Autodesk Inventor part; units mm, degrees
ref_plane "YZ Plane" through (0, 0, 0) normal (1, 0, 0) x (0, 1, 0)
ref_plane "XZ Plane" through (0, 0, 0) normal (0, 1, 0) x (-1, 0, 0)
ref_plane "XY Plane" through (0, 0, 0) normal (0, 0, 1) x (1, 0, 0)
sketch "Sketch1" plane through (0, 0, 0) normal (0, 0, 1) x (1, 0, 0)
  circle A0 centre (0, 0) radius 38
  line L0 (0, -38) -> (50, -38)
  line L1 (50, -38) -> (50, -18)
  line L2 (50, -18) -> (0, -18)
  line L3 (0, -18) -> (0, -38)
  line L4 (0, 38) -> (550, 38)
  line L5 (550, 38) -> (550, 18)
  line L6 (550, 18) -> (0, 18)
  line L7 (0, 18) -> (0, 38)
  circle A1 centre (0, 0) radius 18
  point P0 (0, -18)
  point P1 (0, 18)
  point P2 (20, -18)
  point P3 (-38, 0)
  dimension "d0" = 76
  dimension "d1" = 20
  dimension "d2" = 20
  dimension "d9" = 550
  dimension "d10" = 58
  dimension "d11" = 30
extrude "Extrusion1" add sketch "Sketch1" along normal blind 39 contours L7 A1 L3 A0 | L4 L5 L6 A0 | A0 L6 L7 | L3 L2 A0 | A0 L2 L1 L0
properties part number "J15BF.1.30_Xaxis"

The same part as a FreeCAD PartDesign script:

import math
import FreeCAD as App
import Part
import Sketcher

doc = App.newDocument("Part")
body = doc.addObject("PartDesign::Body", "Body")

# Sketch on XY plane
sketch1 = body.newObject("Sketcher::SketchObject", "Sketch")
sketch1.AttachmentSupport = (doc.getObject("XY_Plane"), [""])
sketch1.MapMode = "FlatFace"
sketch1.addGeometry([
    Part.ArcOfCircle(Part.Circle(App.Vector(0, 0, 0), App.Vector(0, 0, 1), 18), math.radians(90), math.radians(270)),  # 0
    Part.LineSegment(App.Vector(0, 18, 0), App.Vector(550, 18, 0)),  # 1
    Part.LineSegment(App.Vector(550, 18, 0), App.Vector(550, 38, 0)),  # 2
    Part.LineSegment(App.Vector(550, 38, 0), App.Vector(0, 38, 0)),  # 3
    Part.ArcOfCircle(Part.Circle(App.Vector(0, 0, 0), App.Vector(0, 0, 1), 38), math.radians(90), math.radians(270)),  # 4
    Part.LineSegment(App.Vector(0, -38, 0), App.Vector(50, -38, 0)),  # 5
    Part.LineSegment(App.Vector(50, -38, 0), App.Vector(50, -18, 0)),  # 6
    Part.LineSegment(App.Vector(50, -18, 0), App.Vector(0, -18, 0)),  # 7
], False)
sketch1.addConstraint([
    Sketcher.Constraint("Tangent", 0, 1, 1, 1),
    Sketcher.Constraint("Coincident", 1, 2, 2, 1),
    Sketcher.Constraint("Coincident", 2, 2, 3, 1),
    Sketcher.Constraint("Tangent", 3, 2, 4, 1),
    Sketcher.Constraint("Tangent", 4, 2, 5, 1),
    Sketcher.Constraint("Coincident", 5, 2, 6, 1),
    Sketcher.Constraint("Coincident", 6, 2, 7, 1),
    Sketcher.Constraint("Tangent", 7, 2, 0, 2),
    Sketcher.Constraint("Horizontal", 1),
    Sketcher.Constraint("Vertical", 2),
    Sketcher.Constraint("Horizontal", 3),
    Sketcher.Constraint("Horizontal", 5),
    Sketcher.Constraint("Vertical", 6),
    Sketcher.Constraint("Horizontal", 7),
    Sketcher.Constraint("Coincident", 0, 3, -1, 1),
    Sketcher.Constraint("Coincident", 4, 3, -1, 1),
    Sketcher.Constraint("Radius", 4, 38.0),
    Sketcher.Constraint("DistanceX", 1, 1, 1, 2, 550.0),
    Sketcher.Constraint("DistanceY", 2, 1, 2, 2, 20.0),
    Sketcher.Constraint("DistanceX", 5, 1, 5, 2, 50.0),
])
pad1 = body.newObject("PartDesign::Pad", "Pad")
pad1.Profile = sketch1
pad1.Length = 39

doc.recompute()
